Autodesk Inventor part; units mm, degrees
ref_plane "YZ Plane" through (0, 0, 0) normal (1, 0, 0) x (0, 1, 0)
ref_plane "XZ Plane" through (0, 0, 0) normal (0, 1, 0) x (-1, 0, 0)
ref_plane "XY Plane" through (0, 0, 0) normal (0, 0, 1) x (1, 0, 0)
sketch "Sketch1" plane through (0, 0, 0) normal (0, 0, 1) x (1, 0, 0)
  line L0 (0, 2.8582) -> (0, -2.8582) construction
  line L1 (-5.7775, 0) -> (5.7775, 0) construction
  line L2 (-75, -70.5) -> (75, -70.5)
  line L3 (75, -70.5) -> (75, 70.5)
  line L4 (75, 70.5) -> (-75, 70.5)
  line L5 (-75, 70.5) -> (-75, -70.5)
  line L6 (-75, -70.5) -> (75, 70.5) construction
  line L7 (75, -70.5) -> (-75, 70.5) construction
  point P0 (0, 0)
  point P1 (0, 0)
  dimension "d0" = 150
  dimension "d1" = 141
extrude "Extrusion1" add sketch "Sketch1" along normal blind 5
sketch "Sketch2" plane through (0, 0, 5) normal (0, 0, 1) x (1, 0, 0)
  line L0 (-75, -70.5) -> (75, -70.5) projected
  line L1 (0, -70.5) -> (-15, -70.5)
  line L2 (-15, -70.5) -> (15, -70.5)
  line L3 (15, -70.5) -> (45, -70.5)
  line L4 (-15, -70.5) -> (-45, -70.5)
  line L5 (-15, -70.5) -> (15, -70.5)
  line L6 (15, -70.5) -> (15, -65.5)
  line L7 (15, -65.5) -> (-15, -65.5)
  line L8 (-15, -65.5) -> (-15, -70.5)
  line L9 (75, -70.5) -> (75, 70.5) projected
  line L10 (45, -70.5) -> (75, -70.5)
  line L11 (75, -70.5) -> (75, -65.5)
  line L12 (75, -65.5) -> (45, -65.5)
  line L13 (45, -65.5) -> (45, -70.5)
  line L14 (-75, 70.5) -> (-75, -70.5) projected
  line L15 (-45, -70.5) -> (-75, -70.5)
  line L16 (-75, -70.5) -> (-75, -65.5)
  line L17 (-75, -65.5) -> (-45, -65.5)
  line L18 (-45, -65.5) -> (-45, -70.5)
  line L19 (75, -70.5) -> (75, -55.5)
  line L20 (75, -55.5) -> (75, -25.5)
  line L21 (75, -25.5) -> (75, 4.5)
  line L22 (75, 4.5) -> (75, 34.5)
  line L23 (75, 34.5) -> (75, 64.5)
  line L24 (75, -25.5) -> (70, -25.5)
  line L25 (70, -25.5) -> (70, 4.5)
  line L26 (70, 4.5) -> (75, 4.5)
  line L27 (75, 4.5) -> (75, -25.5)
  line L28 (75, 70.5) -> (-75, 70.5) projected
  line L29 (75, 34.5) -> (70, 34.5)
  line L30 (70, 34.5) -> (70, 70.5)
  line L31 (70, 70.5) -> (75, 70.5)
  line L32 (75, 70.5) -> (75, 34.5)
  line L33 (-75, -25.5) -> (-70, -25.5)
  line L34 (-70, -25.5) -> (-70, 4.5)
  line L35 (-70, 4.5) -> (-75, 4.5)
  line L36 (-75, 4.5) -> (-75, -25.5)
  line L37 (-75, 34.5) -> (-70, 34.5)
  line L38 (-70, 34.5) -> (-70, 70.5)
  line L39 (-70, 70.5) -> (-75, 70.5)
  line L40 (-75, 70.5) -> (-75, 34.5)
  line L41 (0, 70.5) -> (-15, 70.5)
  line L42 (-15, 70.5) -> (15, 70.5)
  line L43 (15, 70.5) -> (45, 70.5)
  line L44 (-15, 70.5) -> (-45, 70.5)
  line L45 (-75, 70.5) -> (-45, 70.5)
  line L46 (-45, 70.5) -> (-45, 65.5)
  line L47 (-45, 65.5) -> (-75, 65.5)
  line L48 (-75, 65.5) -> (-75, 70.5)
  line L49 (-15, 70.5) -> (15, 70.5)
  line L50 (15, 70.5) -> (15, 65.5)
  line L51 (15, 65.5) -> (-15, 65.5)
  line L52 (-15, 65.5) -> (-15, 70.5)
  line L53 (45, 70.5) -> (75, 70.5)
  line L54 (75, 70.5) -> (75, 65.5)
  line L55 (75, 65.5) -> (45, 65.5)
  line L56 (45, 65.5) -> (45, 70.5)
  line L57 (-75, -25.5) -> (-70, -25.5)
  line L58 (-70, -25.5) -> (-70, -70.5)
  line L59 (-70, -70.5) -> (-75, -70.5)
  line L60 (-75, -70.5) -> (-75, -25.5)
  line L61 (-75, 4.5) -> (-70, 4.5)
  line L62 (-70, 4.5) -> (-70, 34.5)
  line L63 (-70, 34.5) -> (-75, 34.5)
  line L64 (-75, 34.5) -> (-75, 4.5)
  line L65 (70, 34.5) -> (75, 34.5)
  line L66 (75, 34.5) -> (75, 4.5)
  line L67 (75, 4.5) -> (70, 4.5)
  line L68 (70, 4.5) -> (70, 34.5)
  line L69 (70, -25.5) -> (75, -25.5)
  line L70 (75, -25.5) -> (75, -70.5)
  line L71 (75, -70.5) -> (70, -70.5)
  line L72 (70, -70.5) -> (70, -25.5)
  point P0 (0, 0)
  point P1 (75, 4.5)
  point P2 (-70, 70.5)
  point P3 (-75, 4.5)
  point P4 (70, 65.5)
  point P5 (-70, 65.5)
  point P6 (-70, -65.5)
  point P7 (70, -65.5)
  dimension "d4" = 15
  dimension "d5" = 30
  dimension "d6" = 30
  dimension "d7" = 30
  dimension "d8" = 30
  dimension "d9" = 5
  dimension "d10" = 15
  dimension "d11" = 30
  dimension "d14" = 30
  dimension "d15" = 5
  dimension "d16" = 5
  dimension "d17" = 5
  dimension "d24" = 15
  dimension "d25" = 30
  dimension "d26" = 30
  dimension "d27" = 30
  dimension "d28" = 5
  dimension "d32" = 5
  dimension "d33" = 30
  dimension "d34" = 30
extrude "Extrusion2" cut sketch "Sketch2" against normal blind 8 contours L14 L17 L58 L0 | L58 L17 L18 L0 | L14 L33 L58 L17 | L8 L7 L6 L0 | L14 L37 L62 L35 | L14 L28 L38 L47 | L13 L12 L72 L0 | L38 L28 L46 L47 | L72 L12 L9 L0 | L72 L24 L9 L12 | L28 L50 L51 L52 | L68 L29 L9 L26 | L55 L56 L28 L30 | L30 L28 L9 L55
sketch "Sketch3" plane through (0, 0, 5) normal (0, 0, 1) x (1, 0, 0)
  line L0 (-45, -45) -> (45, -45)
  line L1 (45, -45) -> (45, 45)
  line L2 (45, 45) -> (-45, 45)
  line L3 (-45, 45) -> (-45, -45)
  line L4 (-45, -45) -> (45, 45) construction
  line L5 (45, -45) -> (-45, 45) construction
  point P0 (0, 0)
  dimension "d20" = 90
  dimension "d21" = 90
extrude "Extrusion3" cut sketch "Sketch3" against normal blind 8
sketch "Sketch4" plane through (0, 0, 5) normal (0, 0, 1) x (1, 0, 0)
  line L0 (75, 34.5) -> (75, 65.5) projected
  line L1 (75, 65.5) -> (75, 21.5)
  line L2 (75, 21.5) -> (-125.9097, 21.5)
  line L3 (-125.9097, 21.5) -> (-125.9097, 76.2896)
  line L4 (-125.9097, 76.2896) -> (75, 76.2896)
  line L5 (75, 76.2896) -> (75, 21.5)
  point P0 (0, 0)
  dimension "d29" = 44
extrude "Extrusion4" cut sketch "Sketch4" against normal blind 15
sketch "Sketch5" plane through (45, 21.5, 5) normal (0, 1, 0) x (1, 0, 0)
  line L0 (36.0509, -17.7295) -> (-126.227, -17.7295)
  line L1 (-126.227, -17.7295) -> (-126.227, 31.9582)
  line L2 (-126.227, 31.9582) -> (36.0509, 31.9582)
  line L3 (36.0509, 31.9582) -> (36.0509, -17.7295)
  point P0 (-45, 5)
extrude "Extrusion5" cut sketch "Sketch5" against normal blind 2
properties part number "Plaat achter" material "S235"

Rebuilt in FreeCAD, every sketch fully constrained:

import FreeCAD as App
import Part
import Sketcher

V = App.Vector

doc = App.newDocument("Part")
body = doc.addObject("PartDesign::Body", "Body")

sketch1 = body.newObject("Sketcher::SketchObject", "Sketch")
sketch1.AttachmentSupport = (doc.getObject("XY_Plane"), [""])
sketch1.MapMode = "FlatFace"
sketch1.addGeometry([
    Part.LineSegment(V(-75, 70, 0), V(-75, -70, 0)),
    Part.LineSegment(V(-75, -70, 0), V(75, -70, 0)),
    Part.LineSegment(V(75, -70, 0), V(75, 70, 0)),
    Part.LineSegment(V(75, 70, 0), V(-75, 70, 0)),
], False)
sketch1.addConstraint([
    Sketcher.Constraint("Coincident", 0, 2, 1, 1),
    Sketcher.Constraint("Coincident", 1, 2, 2, 1),
    Sketcher.Constraint("Coincident", 2, 2, 3, 1),
    Sketcher.Constraint("Coincident", 3, 2, 0, 1),
    Sketcher.Constraint("Vertical", 0),
    Sketcher.Constraint("Horizontal", 1),
    Sketcher.Constraint("Vertical", 2),
    Sketcher.Constraint("Horizontal", 3),
    Sketcher.Constraint("Symmetric", 0, 2, 2, 2, -1, 1),
    Sketcher.Constraint("DistanceX", 1, 1, 1, 2, 150.0),
    Sketcher.Constraint("DistanceY", 0, 2, 0, 1, 141.0),
])
pad1 = body.newObject("PartDesign::Pad", "Pad")
pad1.Profile = sketch1
pad1.Length = 5

sketch2 = body.newObject("Sketcher::SketchObject", "Sketch001")
sketch2.AttachmentSupport = (doc.getObject("XY_Plane"), [""])
sketch2.MapMode = "FlatFace"
sketch2.AttachmentOffset = App.Placement(V(0, 0, 5), App.Rotation())
sketch2.addGeometry([
    Part.LineSegment(V(-75, -70, 0), V(-45, -70, 0)),
    Part.LineSegment(V(-45, -70, 0), V(-45, -66, 0)),
    Part.LineSegment(V(-45, -66, 0), V(-70, -66, 0)),
    Part.LineSegment(V(-70, -66, 0), V(-70, -26, 0)),
    Part.LineSegment(V(-70, -26, 0), V(-75, -26, 0)),
    Part.LineSegment(V(-75, -26, 0), V(-75, -70, 0)),
    Part.LineSegment(V(-15, -66, 0), V(-15, -70, 0)),
    Part.LineSegment(V(-15, -70, 0), V(15, -70, 0)),
    Part.LineSegment(V(15, -70, 0), V(15, -66, 0)),
    Part.LineSegment(V(15, -66, 0), V(-15, -66, 0)),
    Part.LineSegment(V(-75, 34, 0), V(-75, 4, 0)),
    Part.LineSegment(V(-75, 4, 0), V(-70, 4, 0)),
    Part.LineSegment(V(-70, 4, 0), V(-70, 34, 0)),
    Part.LineSegment(V(-70, 34, 0), V(-75, 34, 0)),
    Part.LineSegment(V(-75, 70, 0), V(-75, 66, 0)),
    Part.LineSegment(V(-75, 66, 0), V(-45, 66, 0)),
    Part.LineSegment(V(-45, 66, 0), V(-45, 70, 0)),
    Part.LineSegment(V(-45, 70, 0), V(-75, 70, 0)),
    Part.LineSegment(V(45, -66, 0), V(45, -70, 0)),
    Part.LineSegment(V(45, -70, 0), V(75, -70, 0)),
    Part.LineSegment(V(75, -70, 0), V(75, -26, 0)),
    Part.LineSegment(V(75, -26, 0), V(70, -26, 0)),
    Part.LineSegment(V(70, -26, 0), V(70, -66, 0)),
    Part.LineSegment(V(70, -66, 0), V(45, -66, 0)),
    Part.LineSegment(V(15, 70, 0), V(-15, 70, 0)),
    Part.LineSegment(V(-15, 70, 0), V(-15, 66, 0)),
    Part.LineSegment(V(-15, 66, 0), V(15, 66, 0)),
    Part.LineSegment(V(15, 66, 0), V(15, 70, 0)),
    Part.LineSegment(V(70, 34, 0), V(70, 4, 0)),
    Part.LineSegment(V(70, 4, 0), V(75, 4, 0)),
    Part.LineSegment(V(75, 4, 0), V(75, 34, 0)),
    Part.LineSegment(V(75, 34, 0), V(70, 34, 0)),
    Part.LineSegment(V(45, 66, 0), V(75, 66, 0)),
    Part.LineSegment(V(75, 66, 0), V(75, 70, 0)),
    Part.LineSegment(V(75, 70, 0), V(45, 70, 0)),
    Part.LineSegment(V(45, 70, 0), V(45, 66, 0)),
], False)
sketch2.addConstraint([
    Sketcher.Constraint("Coincident", 0, 2, 1, 1),
    Sketcher.Constraint("Coincident", 1, 2, 2, 1),
    Sketcher.Constraint("Coincident", 2, 2, 3, 1),
    Sketcher.Constraint("Coincident", 3, 2, 4, 1),
    Sketcher.Constraint("Coincident", 4, 2, 5, 1),
    Sketcher.Constraint("Coincident", 5, 2, 0, 1),
    Sketcher.Constraint("Coincident", 6, 2, 7, 1),
    Sketcher.Constraint("Coincident", 7, 2, 8, 1),
    Sketcher.Constraint("Coincident", 8, 2, 9, 1),
    Sketcher.Constraint("Coincident", 9, 2, 6, 1),
    Sketcher.Constraint("Coincident", 10, 2, 11, 1),
    Sketcher.Constraint("Coincident", 11, 2, 12, 1),
    Sketcher.Constraint("Coincident", 12, 2, 13, 1),
    Sketcher.Constraint("Coincident", 13, 2, 10, 1),
    Sketcher.Constraint("Coincident", 14, 2, 15, 1),
    Sketcher.Constraint("Coincident", 15, 2, 16, 1),
    Sketcher.Constraint("Coincident", 16, 2, 17, 1),
    Sketcher.Constraint("Coincident", 17, 2, 14, 1),
    Sketcher.Constraint("Coincident", 18, 2, 19, 1),
    Sketcher.Constraint("Coincident", 19, 2, 20, 1),
    Sketcher.Constraint("Coincident", 20, 2, 21, 1),
    Sketcher.Constraint("Coincident", 21, 2, 22, 1),
    Sketcher.Constraint("Coincident", 22, 2, 23, 1),
    Sketcher.Constraint("Coincident", 23, 2, 18, 1),
    Sketcher.Constraint("Coincident", 24, 2, 25, 1),
    Sketcher.Constraint("Coincident", 25, 2, 26, 1),
    Sketcher.Constraint("Coincident", 26, 2, 27, 1),
    Sketcher.Constraint("Coincident", 27, 2, 24, 1),
    Sketcher.Constraint("Coincident", 28, 2, 29, 1),
    Sketcher.Constraint("Coincident", 29, 2, 30, 1),
    Sketcher.Constraint("Coincident", 30, 2, 31, 1),
    Sketcher.Constraint("Coincident", 31, 2, 28, 1),
    Sketcher.Constraint("Coincident", 32, 2, 33, 1),
    Sketcher.Constraint("Coincident", 33, 2, 34, 1),
    Sketcher.Constraint("Coincident", 34, 2, 35, 1),
    Sketcher.Constraint("Coincident", 35, 2, 32, 1),
    Sketcher.Constraint("Horizontal", 0),
    Sketcher.Constraint("Vertical", 1),
    Sketcher.Constraint("Horizontal", 2),
    Sketcher.Constraint("Vertical", 3),
    Sketcher.Constraint("Horizontal", 4),
    Sketcher.Constraint("Vertical", 5),
    Sketcher.Constraint("Vertical", 6),
    Sketcher.Constraint("Horizontal", 7),
    Sketcher.Constraint("Vertical", 8),
    Sketcher.Constraint("Horizontal", 9),
    Sketcher.Constraint("Vertical", 10),
    Sketcher.Constraint("Horizontal", 11),
    Sketcher.Constraint("Vertical", 12),
    Sketcher.Constraint("Horizontal", 13),
    Sketcher.Constraint("Vertical", 14),
    Sketcher.Constraint("Horizontal", 15),
    Sketcher.Constraint("Vertical", 16),
    Sketcher.Constraint("Horizontal", 17),
    Sketcher.Constraint("Vertical", 18),
    Sketcher.Constraint("Horizontal", 19),
    Sketcher.Constraint("Vertical", 20),
    Sketcher.Constraint("Horizontal", 21),
    Sketcher.Constraint("Vertical", 22),
    Sketcher.Constraint("Horizontal", 23),
    Sketcher.Constraint("Horizontal", 24),
    Sketcher.Constraint("Vertical", 25),
    Sketcher.Constraint("Horizontal", 26),
    Sketcher.Constraint("Vertical", 27),
    Sketcher.Constraint("Vertical", 28),
    Sketcher.Constraint("Horizontal", 29),
    Sketcher.Constraint("Vertical", 30),
    Sketcher.Constraint("Horizontal", 31),
    Sketcher.Constraint("Horizontal", 32),
    Sketcher.Constraint("Vertical", 33),
    Sketcher.Constraint("Horizontal", 34),
    Sketcher.Constraint("Vertical", 35),
    Sketcher.Constraint("Symmetric", 16, 2, 18, 2, -1, 1),
    Sketcher.Constraint("Symmetric", 7, 2, 24, 2, -1, 1),
    Sketcher.Constraint("Symmetric", 9, 2, 26, 2, -1, 1),
    Sketcher.Constraint("Symmetric", 5, 2, 33, 2, -1, 1),
    Sketcher.Constraint("Symmetric", 1, 2, 35, 2, -1, 1),
    Sketcher.Constraint("Symmetric", 0, 2, 18, 2, -2),
    Sketcher.Constraint("Symmetric", 4, 2, 20, 2, -2),
    Sketcher.Constraint("Symmetric", 2, 2, 22, 2, -2),
    Sketcher.Constraint("Symmetric", 11, 2, 28, 2, -2),
    Sketcher.Constraint("Symmetric", 13, 2, 30, 2, -2),
    Sketcher.Constraint("Symmetric", 14, 2, 32, 2, -2),
    Sketcher.Constraint("Horizontal", 5, 2, 6, 2),
    Sketcher.Constraint("Horizontal", 2, 2, 8, 2),
    Sketcher.Constraint("Vertical", 5, 2, 10, 2),
    Sketcher.Constraint("Vertical", 3, 2, 11, 2),
    Sketcher.Constraint("Vertical", 9, 2, 24, 2),
    Sketcher.Constraint("Equal", 0, 7),
    Sketcher.Constraint("Equal", 31, 1),
    Sketcher.Constraint("Equal", 34, 10),
    Sketcher.Constraint("DistanceX", 0, 1, 0, 2, 30.0),
    Sketcher.Constraint("DistanceX", 4, 2, 4, 1, 5.0),
    Sketcher.Constraint("DistanceX", 0, 2, 6, 2, 30.0),
    Sketcher.Constraint("DistanceY", 4, 2, 10, 2, 30.0),
    Sketcher.Constraint("DistanceY", 3, 1, 3, 2, 40.0),
    Sketcher.Constraint("DistanceY", 13, 2, 14, 2, 31.0),
])
pocket1 = body.newObject("PartDesign::Pocket", "Pocket")
pocket1.Profile = sketch2
pocket1.Length = 8

sketch3 = body.newObject("Sketcher::SketchObject", "Sketch002")
sketch3.AttachmentSupport = (doc.getObject("XY_Plane"), [""])
sketch3.MapMode = "FlatFace"
sketch3.AttachmentOffset = App.Placement(V(0, 0, 5), App.Rotation())
sketch3.addGeometry([
    Part.LineSegment(V(-45, 45, 0), V(-45, -45, 0)),
    Part.LineSegment(V(-45, -45, 0), V(45, -45, 0)),
    Part.LineSegment(V(45, -45, 0), V(45, 45, 0)),
    Part.LineSegment(V(45, 45, 0), V(-45, 45, 0)),
], False)
sketch3.addConstraint([
    Sketcher.Constraint("Coincident", 0, 2, 1, 1),
    Sketcher.Constraint("Coincident", 1, 2, 2, 1),
    Sketcher.Constraint("Coincident", 2, 2, 3, 1),
    Sketcher.Constraint("Coincident", 3, 2, 0, 1),
    Sketcher.Constraint("Vertical", 0),
    Sketcher.Constraint("Horizontal", 1),
    Sketcher.Constraint("Vertical", 2),
    Sketcher.Constraint("Horizontal", 3),
    Sketcher.Constraint("Symmetric", 0, 2, 2, 2, -1, 1),
    Sketcher.Constraint("Equal", 3, 0),
    Sketcher.Constraint("DistanceX", 1, 1, 1, 2, 90.0),
])
pocket2 = body.newObject("PartDesign::Pocket", "Pocket001")
pocket2.Profile = sketch3
pocket2.Length = 8

sketch4 = body.newObject("Sketcher::SketchObject", "Sketch003")
sketch4.AttachmentSupport = (doc.getObject("XY_Plane"), [""])
sketch4.MapMode = "FlatFace"
sketch4.AttachmentOffset = App.Placement(V(0, 0, 5), App.Rotation())
sketch4.addGeometry([
    Part.LineSegment(V(75, 22, 0), V(75, 76, 0)),
    Part.LineSegment(V(75, 76, 0), V(-126, 76, 0)),
    Part.LineSegment(V(-126, 76, 0), V(-126, 22, 0)),
    Part.LineSegment(V(-126, 22, 0), V(75, 22, 0)),
], False)
sketch4.addConstraint([
    Sketcher.Constraint("Coincident", 0, 2, 1, 1),
    Sketcher.Constraint("Coincident", 1, 2, 2, 1),
    Sketcher.Constraint("Coincident", 2, 2, 3, 1),
    Sketcher.Constraint("Coincident", 3, 2, 0, 1),
    Sketcher.Constraint("Vertical", 0),
    Sketcher.Constraint("Horizontal", 1),
    Sketcher.Constraint("Vertical", 2),
    Sketcher.Constraint("Horizontal", 3),
    Sketcher.Constraint("DistanceX", -1, 1, 0, 2, 75.0),
    Sketcher.Constraint("DistanceY", -1, 1, 2, 2, 21.5),
    Sketcher.Constraint("DistanceX", 1, 2, 1, 1, 200.9097),
    Sketcher.Constraint("DistanceY", 0, 1, 0, 2, 54.7896),
])
pocket3 = body.newObject("PartDesign::Pocket", "Pocket002")
pocket3.Profile = sketch4
pocket3.Length = 15

sketch5 = body.newObject("Sketcher::SketchObject", "Sketch004")
sketch5.AttachmentSupport = (doc.getObject("XZ_Plane"), [""])
sketch5.MapMode = "FlatFace"
sketch5.AttachmentOffset = App.Placement(V(0, 0, -21.5), App.Rotation())
sketch5.addGeometry([
    Part.LineSegment(V(-81, 23, 0), V(81, 23, 0)),
    Part.LineSegment(V(81, 23, 0), V(81, -27, 0)),
    Part.LineSegment(V(81, -27, 0), V(-81, -27, 0)),
    Part.LineSegment(V(-81, -27, 0), V(-81, 23, 0)),
], False)
sketch5.addConstraint([
    Sketcher.Constraint("Coincident", 0, 2, 1, 1),
    Sketcher.Constraint("Coincident", 1, 2, 2, 1),
    Sketcher.Constraint("Coincident", 2, 2, 3, 1),
    Sketcher.Constraint("Coincident", 3, 2, 0, 1),
    Sketcher.Constraint("Horizontal", 0),
    Sketcher.Constraint("Vertical", 1),
    Sketcher.Constraint("Horizontal", 2),
    Sketcher.Constraint("Vertical", 3),
    Sketcher.Constraint("DistanceX", 0, 1, 0, 2, 162.278),
    Sketcher.Constraint("DistanceY", 1, 2, 1, 1, 49.6877),
    Sketcher.Constraint("DistanceX", -1, 1, 0, 2, 81.051),
    Sketcher.Constraint("DistanceY", -1, 1, 0, 2, 22.7295),
])
pocket4 = body.newObject("PartDesign::Pocket", "Pocket003")
pocket4.Profile = sketch5
pocket4.Length = 2
pocket4.Reversed = True

doc.recompute()
